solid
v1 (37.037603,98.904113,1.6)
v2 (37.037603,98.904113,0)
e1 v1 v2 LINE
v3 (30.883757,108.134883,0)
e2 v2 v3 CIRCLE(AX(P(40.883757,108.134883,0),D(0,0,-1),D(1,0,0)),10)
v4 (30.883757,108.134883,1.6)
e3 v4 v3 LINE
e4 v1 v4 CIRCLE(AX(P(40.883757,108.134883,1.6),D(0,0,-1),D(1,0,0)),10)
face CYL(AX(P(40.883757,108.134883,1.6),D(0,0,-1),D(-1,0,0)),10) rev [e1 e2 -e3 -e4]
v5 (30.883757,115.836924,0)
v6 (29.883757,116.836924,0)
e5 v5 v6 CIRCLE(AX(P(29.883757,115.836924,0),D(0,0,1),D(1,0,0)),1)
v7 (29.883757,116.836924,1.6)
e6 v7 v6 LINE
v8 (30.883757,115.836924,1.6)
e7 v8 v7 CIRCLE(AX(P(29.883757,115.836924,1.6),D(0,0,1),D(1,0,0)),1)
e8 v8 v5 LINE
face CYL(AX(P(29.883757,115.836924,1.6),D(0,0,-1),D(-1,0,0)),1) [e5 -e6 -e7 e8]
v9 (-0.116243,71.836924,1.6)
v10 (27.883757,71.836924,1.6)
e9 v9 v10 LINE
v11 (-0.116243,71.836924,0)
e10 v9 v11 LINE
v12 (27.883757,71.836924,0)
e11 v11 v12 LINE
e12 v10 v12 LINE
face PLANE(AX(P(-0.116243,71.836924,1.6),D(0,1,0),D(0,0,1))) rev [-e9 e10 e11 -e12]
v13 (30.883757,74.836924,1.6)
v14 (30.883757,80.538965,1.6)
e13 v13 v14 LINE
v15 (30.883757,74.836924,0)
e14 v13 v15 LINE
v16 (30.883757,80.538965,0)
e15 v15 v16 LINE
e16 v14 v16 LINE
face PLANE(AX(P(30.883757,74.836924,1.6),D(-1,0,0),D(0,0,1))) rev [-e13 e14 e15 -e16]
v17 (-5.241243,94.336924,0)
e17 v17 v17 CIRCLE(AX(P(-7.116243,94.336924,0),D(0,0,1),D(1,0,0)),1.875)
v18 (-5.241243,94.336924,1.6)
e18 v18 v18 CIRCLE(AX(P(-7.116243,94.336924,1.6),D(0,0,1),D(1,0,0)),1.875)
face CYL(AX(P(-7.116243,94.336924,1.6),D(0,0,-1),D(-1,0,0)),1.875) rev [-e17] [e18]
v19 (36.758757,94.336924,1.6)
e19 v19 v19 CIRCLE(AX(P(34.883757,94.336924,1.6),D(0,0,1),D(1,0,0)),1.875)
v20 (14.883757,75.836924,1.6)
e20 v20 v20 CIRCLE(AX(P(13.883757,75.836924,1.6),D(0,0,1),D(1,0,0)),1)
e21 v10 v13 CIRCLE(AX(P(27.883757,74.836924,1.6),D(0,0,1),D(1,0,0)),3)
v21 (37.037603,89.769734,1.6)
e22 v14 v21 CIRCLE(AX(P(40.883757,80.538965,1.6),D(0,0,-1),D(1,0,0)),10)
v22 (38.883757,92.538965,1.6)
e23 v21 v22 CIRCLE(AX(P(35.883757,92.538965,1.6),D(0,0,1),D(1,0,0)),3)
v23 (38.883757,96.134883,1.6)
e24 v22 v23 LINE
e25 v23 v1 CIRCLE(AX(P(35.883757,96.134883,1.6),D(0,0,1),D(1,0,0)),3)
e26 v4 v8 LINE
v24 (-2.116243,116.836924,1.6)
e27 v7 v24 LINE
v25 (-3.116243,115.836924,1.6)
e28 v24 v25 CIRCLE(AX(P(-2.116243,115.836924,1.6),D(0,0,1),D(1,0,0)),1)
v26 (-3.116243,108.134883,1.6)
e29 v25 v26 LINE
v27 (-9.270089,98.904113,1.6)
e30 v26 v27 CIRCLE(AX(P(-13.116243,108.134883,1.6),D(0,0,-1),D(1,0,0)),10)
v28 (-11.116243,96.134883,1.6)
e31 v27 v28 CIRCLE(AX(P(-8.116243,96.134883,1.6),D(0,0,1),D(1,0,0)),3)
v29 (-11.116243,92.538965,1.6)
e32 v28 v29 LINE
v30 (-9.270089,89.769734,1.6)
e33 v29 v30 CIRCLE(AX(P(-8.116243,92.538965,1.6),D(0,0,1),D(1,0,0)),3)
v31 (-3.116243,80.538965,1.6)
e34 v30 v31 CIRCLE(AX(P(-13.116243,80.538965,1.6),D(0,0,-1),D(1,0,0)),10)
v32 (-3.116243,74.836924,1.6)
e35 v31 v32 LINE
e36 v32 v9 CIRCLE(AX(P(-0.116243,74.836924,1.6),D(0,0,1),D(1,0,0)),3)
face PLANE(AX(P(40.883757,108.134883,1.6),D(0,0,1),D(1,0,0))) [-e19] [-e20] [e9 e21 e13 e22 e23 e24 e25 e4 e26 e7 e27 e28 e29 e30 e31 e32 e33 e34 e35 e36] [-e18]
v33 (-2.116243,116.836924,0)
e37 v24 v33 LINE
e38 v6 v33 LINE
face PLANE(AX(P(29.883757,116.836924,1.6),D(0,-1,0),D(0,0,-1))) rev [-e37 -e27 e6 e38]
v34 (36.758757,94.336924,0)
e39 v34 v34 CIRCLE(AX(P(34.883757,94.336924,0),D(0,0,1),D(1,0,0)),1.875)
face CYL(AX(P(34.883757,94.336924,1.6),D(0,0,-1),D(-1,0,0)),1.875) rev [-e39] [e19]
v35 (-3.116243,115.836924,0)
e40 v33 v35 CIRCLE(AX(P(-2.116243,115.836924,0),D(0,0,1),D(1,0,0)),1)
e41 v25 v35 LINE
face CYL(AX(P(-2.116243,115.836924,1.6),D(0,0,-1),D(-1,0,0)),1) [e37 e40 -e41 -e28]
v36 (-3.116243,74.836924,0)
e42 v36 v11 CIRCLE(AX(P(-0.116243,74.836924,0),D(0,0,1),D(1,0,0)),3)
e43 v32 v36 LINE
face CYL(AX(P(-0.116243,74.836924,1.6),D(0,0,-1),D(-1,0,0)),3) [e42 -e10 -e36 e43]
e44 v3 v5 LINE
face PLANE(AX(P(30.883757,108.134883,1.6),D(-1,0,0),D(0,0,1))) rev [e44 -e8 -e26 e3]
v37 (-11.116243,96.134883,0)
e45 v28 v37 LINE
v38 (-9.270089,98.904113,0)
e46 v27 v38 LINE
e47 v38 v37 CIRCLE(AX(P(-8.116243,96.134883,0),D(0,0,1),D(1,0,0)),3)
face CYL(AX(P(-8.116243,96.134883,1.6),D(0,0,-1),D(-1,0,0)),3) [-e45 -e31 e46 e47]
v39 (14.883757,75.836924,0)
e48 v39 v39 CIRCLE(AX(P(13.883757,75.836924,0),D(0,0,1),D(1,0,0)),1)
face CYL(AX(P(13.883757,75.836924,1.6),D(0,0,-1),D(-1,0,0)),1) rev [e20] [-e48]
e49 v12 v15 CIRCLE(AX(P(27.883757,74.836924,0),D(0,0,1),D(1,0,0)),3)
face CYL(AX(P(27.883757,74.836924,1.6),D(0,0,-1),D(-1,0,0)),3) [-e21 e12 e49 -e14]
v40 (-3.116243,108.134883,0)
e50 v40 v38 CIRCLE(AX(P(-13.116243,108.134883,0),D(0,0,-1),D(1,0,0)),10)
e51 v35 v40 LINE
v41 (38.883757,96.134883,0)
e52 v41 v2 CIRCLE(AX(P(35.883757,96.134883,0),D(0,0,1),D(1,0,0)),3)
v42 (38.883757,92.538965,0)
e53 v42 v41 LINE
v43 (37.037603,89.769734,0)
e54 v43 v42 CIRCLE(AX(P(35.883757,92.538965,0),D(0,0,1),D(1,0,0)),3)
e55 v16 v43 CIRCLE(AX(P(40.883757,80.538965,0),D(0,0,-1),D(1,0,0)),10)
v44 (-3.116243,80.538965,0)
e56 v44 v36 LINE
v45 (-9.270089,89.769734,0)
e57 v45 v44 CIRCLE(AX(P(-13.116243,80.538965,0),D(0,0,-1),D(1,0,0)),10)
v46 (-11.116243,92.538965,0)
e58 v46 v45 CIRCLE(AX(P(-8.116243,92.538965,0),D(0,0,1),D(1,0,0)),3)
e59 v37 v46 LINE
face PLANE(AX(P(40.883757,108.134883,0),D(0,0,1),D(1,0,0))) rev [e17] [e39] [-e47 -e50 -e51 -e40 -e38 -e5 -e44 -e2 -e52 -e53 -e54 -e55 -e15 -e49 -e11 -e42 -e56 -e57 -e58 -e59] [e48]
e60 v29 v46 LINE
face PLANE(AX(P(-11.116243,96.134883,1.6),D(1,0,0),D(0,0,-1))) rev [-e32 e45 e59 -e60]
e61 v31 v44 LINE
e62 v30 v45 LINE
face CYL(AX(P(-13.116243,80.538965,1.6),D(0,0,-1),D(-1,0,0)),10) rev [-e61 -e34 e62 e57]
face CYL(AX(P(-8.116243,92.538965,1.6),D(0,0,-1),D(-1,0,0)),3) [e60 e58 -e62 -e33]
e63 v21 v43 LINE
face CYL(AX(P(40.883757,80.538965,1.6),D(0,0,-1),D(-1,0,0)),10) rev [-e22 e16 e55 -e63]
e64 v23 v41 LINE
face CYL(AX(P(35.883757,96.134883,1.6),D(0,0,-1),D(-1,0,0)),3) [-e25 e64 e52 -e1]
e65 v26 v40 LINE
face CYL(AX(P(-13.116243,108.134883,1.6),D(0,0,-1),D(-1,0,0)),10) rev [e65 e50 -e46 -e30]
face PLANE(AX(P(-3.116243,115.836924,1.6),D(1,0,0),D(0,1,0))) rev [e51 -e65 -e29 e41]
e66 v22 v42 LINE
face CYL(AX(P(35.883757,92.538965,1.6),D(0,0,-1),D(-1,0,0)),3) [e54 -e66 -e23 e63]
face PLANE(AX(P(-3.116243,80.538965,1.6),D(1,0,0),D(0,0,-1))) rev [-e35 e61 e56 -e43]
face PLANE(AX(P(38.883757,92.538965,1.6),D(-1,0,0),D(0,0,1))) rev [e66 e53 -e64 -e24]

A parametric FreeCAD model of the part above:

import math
import FreeCAD as App
import Part
import Sketcher

V = App.Vector
Q = App.Units.Quantity

doc = App.newDocument("Part")
body = doc.addObject("PartDesign::Body", "Body")

# Sketch on XY plane
sketch1 = body.newObject("Sketcher::SketchObject", "Sketch")
sketch1.AttachmentSupport = (doc.getObject("XY_Plane"), [""])
sketch1.MapMode = "FlatFace"
sketch1.addGeometry(Part.LineSegment(V(30.9, 108.1, 0), V(30.9, 115.8, 0)), False)
sketch1.addGeometry(Part.ArcOfCircle(Part.Circle(V(29.9, 115.8, 0), V(0, 0, 1), 1), math.radians(0), math.radians(90)), False)
sketch1.addGeometry(Part.LineSegment(V(29.9, 116.8, 0), V(-2.1, 116.8, 0)), False)
sketch1.addGeometry(Part.ArcOfCircle(Part.Circle(V(-2.1, 115.8, 0), V(0, 0, 1), 1), math.radians(90), math.radians(180)), False)
sketch1.addGeometry(Part.LineSegment(V(-3.1, 115.8, 0), V(-3.1, 108.1, 0)), False)
sketch1.addGeometry(Part.ArcOfCircle(Part.Circle(V(-13.1, 108.1, 0), V(0, 0, 1), 10), math.radians(-67), math.radians(0)), False)
sketch1.addGeometry(Part.ArcOfCircle(Part.Circle(V(-8.1, 96.1, 0), V(0, 0, 1), 3), math.radians(113), math.radians(180)), False)
sketch1.addGeometry(Part.LineSegment(V(-11.1, 96.1, 0), V(-11.1, 92.5, 0)), False)
sketch1.addGeometry(Part.ArcOfCircle(Part.Circle(V(-8.1, 92.5, 0), V(0, 0, 1), 3), math.radians(-180), math.radians(-113)), False)
sketch1.addGeometry(Part.ArcOfCircle(Part.Circle(V(-13.1, 80.5, 0), V(0, 0, 1), 10), math.radians(0), math.radians(67)), False)
sketch1.addGeometry(Part.LineSegment(V(-3.1, 80.5, 0), V(-3.1, 74.8, 0)), False)
sketch1.addGeometry(Part.ArcOfCircle(Part.Circle(V(-0.1, 74.8, 0), V(0, 0, 1), 3), math.radians(180), math.radians(270)), False)
sketch1.addGeometry(Part.LineSegment(V(-0.1, 71.8, 0), V(27.9, 71.8, 0)), False)
sketch1.addGeometry(Part.ArcOfCircle(Part.Circle(V(27.9, 74.8, 0), V(0, 0, 1), 3), math.radians(-90), math.radians(0)), False)
sketch1.addGeometry(Part.LineSegment(V(30.9, 74.8, 0), V(30.9, 80.5, 0)), False)
sketch1.addGeometry(Part.ArcOfCircle(Part.Circle(V(40.9, 80.5, 0), V(0, 0, 1), 10), math.radians(113), math.radians(180)), False)
sketch1.addGeometry(Part.ArcOfCircle(Part.Circle(V(35.9, 92.5, 0), V(0, 0, 1), 3), math.radians(-67), math.radians(0)), False)
sketch1.addGeometry(Part.LineSegment(V(38.9, 92.5, 0), V(38.9, 96.1, 0)), False)
sketch1.addGeometry(Part.ArcOfCircle(Part.Circle(V(35.9, 96.1, 0), V(0, 0, 1), 3), math.radians(0), math.radians(67)), False)
sketch1.addGeometry(Part.ArcOfCircle(Part.Circle(V(40.9, 108.1, 0), V(0, 0, 1), 10), math.radians(180), math.radians(247)), False)
sketch1.addGeometry(Part.Circle(V(13.9, 75.8, 0), V(0, 0, 1), 1), False)
sketch1.addGeometry(Part.Circle(V(-7.1, 94.3, 0), V(0, 0, 1), 1.9), False)
sketch1.addGeometry(Part.Circle(V(34.9, 94.3, 0), V(0, 0, 1), 1.9), False)
sketch1.addConstraint(Sketcher.Constraint("Tangent", 0, 2, 1, 1))
sketch1.addConstraint(Sketcher.Constraint("Tangent", 1, 2, 2, 1))
sketch1.addConstraint(Sketcher.Constraint("Tangent", 2, 2, 3, 1))
sketch1.addConstraint(Sketcher.Constraint("Tangent", 3, 2, 4, 1))
sketch1.addConstraint(Sketcher.Constraint("Tangent", 4, 2, 5, 2))
sketch1.addConstraint(Sketcher.Constraint("Tangent", 5, 1, 6, 1))
sketch1.addConstraint(Sketcher.Constraint("Tangent", 6, 2, 7, 1))
sketch1.addConstraint(Sketcher.Constraint("Tangent", 7, 2, 8, 1))
sketch1.addConstraint(Sketcher.Constraint("Tangent", 8, 2, 9, 2))
sketch1.addConstraint(Sketcher.Constraint("Tangent", 9, 1, 10, 1))
sketch1.addConstraint(Sketcher.Constraint("Tangent", 10, 2, 11, 1))
sketch1.addConstraint(Sketcher.Constraint("Tangent", 11, 2, 12, 1))
sketch1.addConstraint(Sketcher.Constraint("Tangent", 12, 2, 13, 1))
sketch1.addConstraint(Sketcher.Constraint("Tangent", 13, 2, 14, 1))
sketch1.addConstraint(Sketcher.Constraint("Tangent", 14, 2, 15, 2))
sketch1.addConstraint(Sketcher.Constraint("Tangent", 15, 1, 16, 1))
sketch1.addConstraint(Sketcher.Constraint("Tangent", 16, 2, 17, 1))
sketch1.addConstraint(Sketcher.Constraint("Tangent", 17, 2, 18, 1))
sketch1.addConstraint(Sketcher.Constraint("Tangent", 18, 2, 19, 2))
sketch1.addConstraint(Sketcher.Constraint("Tangent", 19, 1, 0, 1))
sketch1.addConstraint(Sketcher.Constraint("Vertical", 0))
sketch1.addConstraint(Sketcher.Constraint("Horizontal", 2))
sketch1.addConstraint(Sketcher.Constraint("Vertical", 4))
sketch1.addConstraint(Sketcher.Constraint("Vertical", 7))
sketch1.addConstraint(Sketcher.Constraint("Vertical", 10))
sketch1.addConstraint(Sketcher.Constraint("Horizontal", 12))
sketch1.addConstraint(Sketcher.Constraint("Vertical", 14))
sketch1.addConstraint(Sketcher.Constraint("Vertical", 17))
sketch1.addConstraint(Sketcher.Constraint("Equal", 1, 3))
sketch1.addConstraint(Sketcher.Constraint("Equal", 6, 8))
sketch1.addConstraint(Sketcher.Constraint("Equal", 5, 9))
sketch1.addConstraint(Sketcher.Constraint("Equal", 8, 11))
sketch1.addConstraint(Sketcher.Constraint("Equal", 11, 13))
sketch1.addConstraint(Sketcher.Constraint("Equal", 9, 15))
sketch1.addConstraint(Sketcher.Constraint("Equal", 13, 16))
sketch1.addConstraint(Sketcher.Constraint("Equal", 16, 18))
sketch1.addConstraint(Sketcher.Constraint("Equal", 15, 19))
sketch1.addConstraint(Sketcher.Constraint("Equal", 3, 20))
sketch1.addConstraint(Sketcher.Constraint("Equal", 21, 22))
sketch1.addConstraint(Sketcher.Constraint("Horizontal", 9, 3, 15, 3))
sketch1.addConstraint(Sketcher.Constraint("Horizontal", 8, 3, 16, 3))
sketch1.addConstraint(Sketcher.Constraint("Horizontal", 6, 3, 18, 3))
sketch1.addConstraint(Sketcher.Constraint("Horizontal", 5, 3, 19, 3))
sketch1.addConstraint(Sketcher.Constraint("Horizontal", 21, 3, 22, 3))
sketch1.addConstraint(Sketcher.Constraint("Vertical", 5, 3, 9, 3))
sketch1.addConstraint(Sketcher.Constraint("Diameter", 20, Q("2 mm")))
sketch1.addConstraint(Sketcher.Constraint("Radius", 5, Q("10 mm")))
sketch1.addConstraint(Sketcher.Constraint("Radius", 6, Q("3 mm")))
sketch1.addConstraint(Sketcher.Constraint("Diameter", 21, Q("3.75 mm")))
sketch1.addConstraint(Sketcher.Constraint("DistanceX", 2, 2, 2, 1, Q("32 mm")))
sketch1.addConstraint(Sketcher.Constraint("DistanceX", 5, 3, 6, 3, Q("5 mm")))
sketch1.addConstraint(Sketcher.Constraint("DistanceY", 11, 3, 3, 3, Q("41 mm")))
sketch1.addConstraint(Sketcher.Constraint("DistanceX", 20, 3, 13, 3, Q("14 mm")))
sketch1.addConstraint(Sketcher.Constraint("DistanceY", 13, 3, 20, 3, Q("1 mm")))
sketch1.addConstraint(Sketcher.Constraint("DistanceX", 8, 3, 21, 3, Q("1 mm")))
sketch1.addConstraint(Sketcher.Constraint("DistanceX", 22, 3, 16, 3, Q("1 mm")))
sketch1.addConstraint(Sketcher.Constraint("DistanceY", 11, 3, 21, 3, Q("19.5 mm")))
sketch1.addConstraint(Sketcher.Constraint("DistanceY", 0, 1, 0, 2, Q("7.702041 mm")))
sketch1.addConstraint(Sketcher.Constraint("DistanceY", 10, 2, 10, 1, Q("5.702041 mm")))
sketch1.addConstraint(Sketcher.Constraint("DistanceX", 5, 1, -1, 1, Q("9.270089 mm")))
sketch1.addConstraint(Sketcher.Constraint("DistanceY", -1, 1, 1, 3, Q("115.836924 mm")))
pad1 = body.newObject("PartDesign::Pad", "Pad")
pad1.Profile = sketch1
pad1.Length = 1.6

doc.recompute()
